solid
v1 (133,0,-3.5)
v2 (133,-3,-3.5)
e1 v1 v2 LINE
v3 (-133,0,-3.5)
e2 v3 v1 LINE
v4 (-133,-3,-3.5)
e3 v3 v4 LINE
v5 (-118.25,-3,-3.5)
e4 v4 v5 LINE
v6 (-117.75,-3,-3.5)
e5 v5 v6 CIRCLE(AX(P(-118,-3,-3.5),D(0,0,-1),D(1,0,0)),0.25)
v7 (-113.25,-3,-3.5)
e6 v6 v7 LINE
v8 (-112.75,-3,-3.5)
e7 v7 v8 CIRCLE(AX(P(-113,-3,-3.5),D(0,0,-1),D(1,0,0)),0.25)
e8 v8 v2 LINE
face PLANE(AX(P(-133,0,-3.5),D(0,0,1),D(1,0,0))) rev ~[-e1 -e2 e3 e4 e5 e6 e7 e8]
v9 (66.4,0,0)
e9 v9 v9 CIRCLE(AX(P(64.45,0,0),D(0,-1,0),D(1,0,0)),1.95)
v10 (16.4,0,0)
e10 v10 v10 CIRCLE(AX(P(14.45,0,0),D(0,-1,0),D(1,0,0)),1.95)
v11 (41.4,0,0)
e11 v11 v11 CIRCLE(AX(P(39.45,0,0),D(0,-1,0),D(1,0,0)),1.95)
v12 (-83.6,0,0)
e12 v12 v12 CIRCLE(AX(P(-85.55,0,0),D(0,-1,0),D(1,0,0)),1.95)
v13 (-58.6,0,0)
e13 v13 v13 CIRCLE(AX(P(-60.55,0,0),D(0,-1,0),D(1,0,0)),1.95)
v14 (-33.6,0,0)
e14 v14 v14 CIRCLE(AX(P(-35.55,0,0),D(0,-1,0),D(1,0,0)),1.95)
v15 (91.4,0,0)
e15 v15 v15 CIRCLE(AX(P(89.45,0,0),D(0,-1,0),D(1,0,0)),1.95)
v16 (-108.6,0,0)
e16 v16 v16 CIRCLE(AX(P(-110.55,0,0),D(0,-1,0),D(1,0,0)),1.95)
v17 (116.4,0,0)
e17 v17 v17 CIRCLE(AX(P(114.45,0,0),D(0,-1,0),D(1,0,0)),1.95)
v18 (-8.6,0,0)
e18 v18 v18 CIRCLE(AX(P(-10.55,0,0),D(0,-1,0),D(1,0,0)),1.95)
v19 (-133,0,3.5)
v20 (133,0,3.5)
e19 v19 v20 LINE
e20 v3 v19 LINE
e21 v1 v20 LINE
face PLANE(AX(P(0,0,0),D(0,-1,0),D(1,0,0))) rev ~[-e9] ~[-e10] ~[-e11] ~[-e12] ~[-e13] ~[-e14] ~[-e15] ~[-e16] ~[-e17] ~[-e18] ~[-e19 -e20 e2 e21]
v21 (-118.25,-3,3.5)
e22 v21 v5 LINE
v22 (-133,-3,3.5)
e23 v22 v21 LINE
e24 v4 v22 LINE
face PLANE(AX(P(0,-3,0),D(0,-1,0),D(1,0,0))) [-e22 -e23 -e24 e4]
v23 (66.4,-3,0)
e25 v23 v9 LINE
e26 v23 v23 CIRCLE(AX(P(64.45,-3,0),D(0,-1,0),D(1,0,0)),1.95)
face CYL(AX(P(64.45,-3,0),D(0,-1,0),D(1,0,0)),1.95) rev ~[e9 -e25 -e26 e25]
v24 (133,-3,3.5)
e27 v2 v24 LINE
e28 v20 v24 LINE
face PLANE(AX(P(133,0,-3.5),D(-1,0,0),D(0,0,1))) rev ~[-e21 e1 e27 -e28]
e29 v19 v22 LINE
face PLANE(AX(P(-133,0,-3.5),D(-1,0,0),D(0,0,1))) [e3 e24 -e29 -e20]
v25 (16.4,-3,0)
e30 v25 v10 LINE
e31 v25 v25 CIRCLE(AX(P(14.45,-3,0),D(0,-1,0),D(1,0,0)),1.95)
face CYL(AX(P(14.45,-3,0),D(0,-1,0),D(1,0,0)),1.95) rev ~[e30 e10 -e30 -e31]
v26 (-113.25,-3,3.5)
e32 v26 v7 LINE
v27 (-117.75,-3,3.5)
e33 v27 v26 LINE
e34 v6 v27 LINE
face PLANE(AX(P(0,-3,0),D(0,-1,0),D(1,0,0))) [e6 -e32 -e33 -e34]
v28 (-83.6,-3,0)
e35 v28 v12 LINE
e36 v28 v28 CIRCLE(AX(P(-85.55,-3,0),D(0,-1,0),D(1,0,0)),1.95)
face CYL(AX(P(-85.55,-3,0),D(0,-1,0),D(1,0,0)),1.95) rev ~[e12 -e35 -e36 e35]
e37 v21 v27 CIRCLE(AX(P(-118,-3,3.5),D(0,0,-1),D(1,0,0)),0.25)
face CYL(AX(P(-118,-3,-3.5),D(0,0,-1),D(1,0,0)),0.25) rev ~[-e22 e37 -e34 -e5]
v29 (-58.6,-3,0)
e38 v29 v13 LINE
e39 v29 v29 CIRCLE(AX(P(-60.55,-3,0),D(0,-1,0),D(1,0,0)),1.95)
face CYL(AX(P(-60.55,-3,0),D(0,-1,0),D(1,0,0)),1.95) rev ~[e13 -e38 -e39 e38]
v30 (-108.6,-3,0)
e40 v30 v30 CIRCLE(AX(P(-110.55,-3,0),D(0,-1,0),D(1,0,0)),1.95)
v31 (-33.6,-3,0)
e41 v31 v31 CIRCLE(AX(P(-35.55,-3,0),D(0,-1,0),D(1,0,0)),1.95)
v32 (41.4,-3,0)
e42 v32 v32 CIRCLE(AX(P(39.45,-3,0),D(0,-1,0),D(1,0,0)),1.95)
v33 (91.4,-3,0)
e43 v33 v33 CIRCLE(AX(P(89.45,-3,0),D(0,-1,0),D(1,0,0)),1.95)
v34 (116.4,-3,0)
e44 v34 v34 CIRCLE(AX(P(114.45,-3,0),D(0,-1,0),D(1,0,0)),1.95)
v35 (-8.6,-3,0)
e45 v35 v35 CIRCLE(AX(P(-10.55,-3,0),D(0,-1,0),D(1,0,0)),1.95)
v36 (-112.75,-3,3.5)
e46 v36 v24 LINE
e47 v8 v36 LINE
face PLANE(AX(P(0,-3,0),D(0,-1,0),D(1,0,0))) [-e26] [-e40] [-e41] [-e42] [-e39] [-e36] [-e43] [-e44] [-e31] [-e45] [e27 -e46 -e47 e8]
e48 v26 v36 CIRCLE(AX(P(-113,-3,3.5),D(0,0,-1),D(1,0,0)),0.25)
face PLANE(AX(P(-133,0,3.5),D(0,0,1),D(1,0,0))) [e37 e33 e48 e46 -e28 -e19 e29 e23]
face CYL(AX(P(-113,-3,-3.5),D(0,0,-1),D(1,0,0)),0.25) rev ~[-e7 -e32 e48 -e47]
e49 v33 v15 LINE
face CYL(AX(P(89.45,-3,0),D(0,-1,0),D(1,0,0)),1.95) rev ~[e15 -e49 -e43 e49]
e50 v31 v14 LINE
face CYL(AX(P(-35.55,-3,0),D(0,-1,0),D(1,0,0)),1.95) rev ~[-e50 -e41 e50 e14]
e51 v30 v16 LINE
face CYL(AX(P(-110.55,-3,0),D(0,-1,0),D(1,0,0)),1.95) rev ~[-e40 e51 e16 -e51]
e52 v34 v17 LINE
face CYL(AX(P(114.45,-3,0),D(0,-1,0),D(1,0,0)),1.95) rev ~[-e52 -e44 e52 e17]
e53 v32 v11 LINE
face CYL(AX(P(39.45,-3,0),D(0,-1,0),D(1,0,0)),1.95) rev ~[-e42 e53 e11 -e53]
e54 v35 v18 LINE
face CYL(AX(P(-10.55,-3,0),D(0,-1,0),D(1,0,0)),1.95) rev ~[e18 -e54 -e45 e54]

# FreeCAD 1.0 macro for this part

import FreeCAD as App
import Part
import Sketcher

V = App.Vector
Q = App.Units.Quantity

doc = App.newDocument("Part")
body = doc.addObject("PartDesign::Body", "Body")

sketch1 = body.newObject("Sketcher::SketchObject", "Sketch")
sketch1.AttachmentSupport = (doc.getObject("XZ_Plane"), [""])
sketch1.MapMode = "FlatFace"
sketch1.addGeometry(Part.LineSegment(V(-133, 3.5, 0), V(-133, -3.5, 0)), False)
sketch1.addGeometry(Part.LineSegment(V(-133, -3.5, 0), V(133, -3.5, 0)), False)
sketch1.addGeometry(Part.LineSegment(V(133, -3.5, 0), V(133, 3.5, 0)), False)
sketch1.addGeometry(Part.LineSegment(V(133, 3.5, 0), V(-133, 3.5, 0)), False)
sketch1.addConstraint(Sketcher.Constraint("Coincident", 0, 2, 1, 1))
sketch1.addConstraint(Sketcher.Constraint("Coincident", 1, 2, 2, 1))
sketch1.addConstraint(Sketcher.Constraint("Coincident", 2, 2, 3, 1))
sketch1.addConstraint(Sketcher.Constraint("Coincident", 3, 2, 0, 1))
sketch1.addConstraint(Sketcher.Constraint("Vertical", 0))
sketch1.addConstraint(Sketcher.Constraint("Horizontal", 1))
sketch1.addConstraint(Sketcher.Constraint("Vertical", 2))
sketch1.addConstraint(Sketcher.Constraint("Horizontal", 3))
sketch1.addConstraint(Sketcher.Constraint("Symmetric", 0, 2, 2, 2, -1, 1))
sketch1.addConstraint(Sketcher.Constraint("DistanceX", 1, 1, 1, 2, Q("266 mm")))
sketch1.addConstraint(Sketcher.Constraint("DistanceY", 0, 2, 0, 1, Q("7 mm")))
pad1 = body.newObject("PartDesign::Pad", "Pad")
pad1.Profile = sketch1
pad1.Length = 3

sketch2 = body.newObject("Sketcher::SketchObject", "Sketch001")
sketch2.AttachmentSupport = (doc.getObject("XZ_Plane"), [""])
sketch2.MapMode = "FlatFace"
sketch2.AttachmentOffset = App.Placement(V(0, 0, 3), App.Rotation())
sketch2.addGeometry(Part.Circle(V(-110.55, 0, 0), V(0, 0, 1), 1.95), False)
sketch2.addGeometry(Part.Circle(V(-85.55, 0, 0), V(0, 0, 1), 1.95), False)
sketch2.addGeometry(Part.Circle(V(-60.55, 0, 0), V(0, 0, 1), 1.95), False)
sketch2.addGeometry(Part.Circle(V(-35.55, 0, 0), V(0, 0, 1), 1.95), False)
sketch2.addGeometry(Part.Circle(V(-10.55, 0, 0), V(0, 0, 1), 1.95), False)
sketch2.addGeometry(Part.Circle(V(14.45, 0, 0), V(0, 0, 1), 1.95), False)
sketch2.addGeometry(Part.Circle(V(39.45, 0, 0), V(0, 0, 1), 1.95), False)
sketch2.addGeometry(Part.Circle(V(64.45, 0, 0), V(0, 0, 1), 1.95), False)
sketch2.addGeometry(Part.Circle(V(89.45, 0, 0), V(0, 0, 1), 1.95), False)
sketch2.addGeometry(Part.Circle(V(114.45, 0, 0), V(0, 0, 1), 1.95), False)
sketch2.addConstraint(Sketcher.Constraint("Equal", 0, 1))
sketch2.addConstraint(Sketcher.Constraint("Equal", 1, 2))
sketch2.addConstraint(Sketcher.Constraint("Equal", 2, 3))
sketch2.addConstraint(Sketcher.Constraint("Equal", 3, 4))
sketch2.addConstraint(Sketcher.Constraint("Equal", 4, 5))
sketch2.addConstraint(Sketcher.Constraint("Equal", 5, 6))
sketch2.addConstraint(Sketcher.Constraint("Equal", 6, 7))
sketch2.addConstraint(Sketcher.Constraint("Equal", 7, 8))
sketch2.addConstraint(Sketcher.Constraint("Equal", 8, 9))
sketch2.addConstraint(Sketcher.Constraint("PointOnObject", 0, 3, -1))
sketch2.addConstraint(Sketcher.Constraint("PointOnObject", 1, 3, -1))
sketch2.addConstraint(Sketcher.Constraint("PointOnObject", 2, 3, -1))
sketch2.addConstraint(Sketcher.Constraint("PointOnObject", 3, 3, -1))
sketch2.addConstraint(Sketcher.Constraint("PointOnObject", 4, 3, -1))
sketch2.addConstraint(Sketcher.Constraint("PointOnObject", 5, 3, -1))
sketch2.addConstraint(Sketcher.Constraint("PointOnObject", 6, 3, -1))
sketch2.addConstraint(Sketcher.Constraint("PointOnObject", 7, 3, -1))
sketch2.addConstraint(Sketcher.Constraint("PointOnObject", 8, 3, -1))
sketch2.addConstraint(Sketcher.Constraint("PointOnObject", 9, 3, -1))
sketch2.addConstraint(Sketcher.Constraint("Diameter", 0, Q("3.9 mm")))
sketch2.addConstraint(Sketcher.Constraint("DistanceX", 0, 3, 1, 3, Q("25 mm")))
sketch2.addConstraint(Sketcher.Constraint("DistanceX", 1, 3, 2, 3, Q("25 mm")))
sketch2.addConstraint(Sketcher.Constraint("DistanceX", 2, 3, 3, 3, Q("25 mm")))
sketch2.addConstraint(Sketcher.Constraint("DistanceX", 3, 3, 4, 3, Q("25 mm")))
sketch2.addConstraint(Sketcher.Constraint("DistanceX", 4, 3, 5, 3, Q("25 mm")))
sketch2.addConstraint(Sketcher.Constraint("DistanceX", 5, 3, 6, 3, Q("25 mm")))
sketch2.addConstraint(Sketcher.Constraint("DistanceX", 6, 3, 7, 3, Q("25 mm")))
sketch2.addConstraint(Sketcher.Constraint("DistanceX", 7, 3, 8, 3, Q("25 mm")))
sketch2.addConstraint(Sketcher.Constraint("DistanceX", 8, 3, 9, 3, Q("25 mm")))
sketch2.addConstraint(Sketcher.Constraint("DistanceX", 0, 3, -1, 1, Q("110.55 mm")))
pocket1 = body.newObject("PartDesign::Pocket", "Pocket")
pocket1.Profile = sketch2
pocket1.Type = "ThroughAll"

sketch3 = body.newObject("Sketcher::SketchObject", "Sketch002")
sketch3.AttachmentSupport = (doc.getObject("XY_Plane"), [""])
sketch3.MapMode = "FlatFace"
sketch3.AttachmentOffset = App.Placement(V(0, 0, -3.5), App.Rotation())
sketch3.addGeometry(Part.Circle(V(-118, -3, 0), V(0, 0, 1), 0.25), False)
sketch3.addGeometry(Part.Circle(V(-113, -3, 0), V(0, 0, 1), 0.25), False)
sketch3.addConstraint(Sketcher.Constraint("Equal", 0, 1))
sketch3.addConstraint(Sketcher.Constraint("Horizontal", 0, 3, 1, 3))
sketch3.addConstraint(Sketcher.Constraint("Diameter", 0, Q("0.5 mm")))
sketch3.addConstraint(Sketcher.Constraint("DistanceX", 0, 3, -1, 1, Q("118 mm")))
sketch3.addConstraint(Sketcher.Constraint("DistanceY", 0, 3, -1, 1, Q("3 mm")))
sketch3.addConstraint(Sketcher.Constraint("DistanceX", 1, 3, -1, 1, Q("113 mm")))
pocket2 = body.newObject("PartDesign::Pocket", "Pocket001")
pocket2.Profile = sketch3
pocket2.Type = "ThroughAll"
pocket2.Reversed = True

doc.recompute()
